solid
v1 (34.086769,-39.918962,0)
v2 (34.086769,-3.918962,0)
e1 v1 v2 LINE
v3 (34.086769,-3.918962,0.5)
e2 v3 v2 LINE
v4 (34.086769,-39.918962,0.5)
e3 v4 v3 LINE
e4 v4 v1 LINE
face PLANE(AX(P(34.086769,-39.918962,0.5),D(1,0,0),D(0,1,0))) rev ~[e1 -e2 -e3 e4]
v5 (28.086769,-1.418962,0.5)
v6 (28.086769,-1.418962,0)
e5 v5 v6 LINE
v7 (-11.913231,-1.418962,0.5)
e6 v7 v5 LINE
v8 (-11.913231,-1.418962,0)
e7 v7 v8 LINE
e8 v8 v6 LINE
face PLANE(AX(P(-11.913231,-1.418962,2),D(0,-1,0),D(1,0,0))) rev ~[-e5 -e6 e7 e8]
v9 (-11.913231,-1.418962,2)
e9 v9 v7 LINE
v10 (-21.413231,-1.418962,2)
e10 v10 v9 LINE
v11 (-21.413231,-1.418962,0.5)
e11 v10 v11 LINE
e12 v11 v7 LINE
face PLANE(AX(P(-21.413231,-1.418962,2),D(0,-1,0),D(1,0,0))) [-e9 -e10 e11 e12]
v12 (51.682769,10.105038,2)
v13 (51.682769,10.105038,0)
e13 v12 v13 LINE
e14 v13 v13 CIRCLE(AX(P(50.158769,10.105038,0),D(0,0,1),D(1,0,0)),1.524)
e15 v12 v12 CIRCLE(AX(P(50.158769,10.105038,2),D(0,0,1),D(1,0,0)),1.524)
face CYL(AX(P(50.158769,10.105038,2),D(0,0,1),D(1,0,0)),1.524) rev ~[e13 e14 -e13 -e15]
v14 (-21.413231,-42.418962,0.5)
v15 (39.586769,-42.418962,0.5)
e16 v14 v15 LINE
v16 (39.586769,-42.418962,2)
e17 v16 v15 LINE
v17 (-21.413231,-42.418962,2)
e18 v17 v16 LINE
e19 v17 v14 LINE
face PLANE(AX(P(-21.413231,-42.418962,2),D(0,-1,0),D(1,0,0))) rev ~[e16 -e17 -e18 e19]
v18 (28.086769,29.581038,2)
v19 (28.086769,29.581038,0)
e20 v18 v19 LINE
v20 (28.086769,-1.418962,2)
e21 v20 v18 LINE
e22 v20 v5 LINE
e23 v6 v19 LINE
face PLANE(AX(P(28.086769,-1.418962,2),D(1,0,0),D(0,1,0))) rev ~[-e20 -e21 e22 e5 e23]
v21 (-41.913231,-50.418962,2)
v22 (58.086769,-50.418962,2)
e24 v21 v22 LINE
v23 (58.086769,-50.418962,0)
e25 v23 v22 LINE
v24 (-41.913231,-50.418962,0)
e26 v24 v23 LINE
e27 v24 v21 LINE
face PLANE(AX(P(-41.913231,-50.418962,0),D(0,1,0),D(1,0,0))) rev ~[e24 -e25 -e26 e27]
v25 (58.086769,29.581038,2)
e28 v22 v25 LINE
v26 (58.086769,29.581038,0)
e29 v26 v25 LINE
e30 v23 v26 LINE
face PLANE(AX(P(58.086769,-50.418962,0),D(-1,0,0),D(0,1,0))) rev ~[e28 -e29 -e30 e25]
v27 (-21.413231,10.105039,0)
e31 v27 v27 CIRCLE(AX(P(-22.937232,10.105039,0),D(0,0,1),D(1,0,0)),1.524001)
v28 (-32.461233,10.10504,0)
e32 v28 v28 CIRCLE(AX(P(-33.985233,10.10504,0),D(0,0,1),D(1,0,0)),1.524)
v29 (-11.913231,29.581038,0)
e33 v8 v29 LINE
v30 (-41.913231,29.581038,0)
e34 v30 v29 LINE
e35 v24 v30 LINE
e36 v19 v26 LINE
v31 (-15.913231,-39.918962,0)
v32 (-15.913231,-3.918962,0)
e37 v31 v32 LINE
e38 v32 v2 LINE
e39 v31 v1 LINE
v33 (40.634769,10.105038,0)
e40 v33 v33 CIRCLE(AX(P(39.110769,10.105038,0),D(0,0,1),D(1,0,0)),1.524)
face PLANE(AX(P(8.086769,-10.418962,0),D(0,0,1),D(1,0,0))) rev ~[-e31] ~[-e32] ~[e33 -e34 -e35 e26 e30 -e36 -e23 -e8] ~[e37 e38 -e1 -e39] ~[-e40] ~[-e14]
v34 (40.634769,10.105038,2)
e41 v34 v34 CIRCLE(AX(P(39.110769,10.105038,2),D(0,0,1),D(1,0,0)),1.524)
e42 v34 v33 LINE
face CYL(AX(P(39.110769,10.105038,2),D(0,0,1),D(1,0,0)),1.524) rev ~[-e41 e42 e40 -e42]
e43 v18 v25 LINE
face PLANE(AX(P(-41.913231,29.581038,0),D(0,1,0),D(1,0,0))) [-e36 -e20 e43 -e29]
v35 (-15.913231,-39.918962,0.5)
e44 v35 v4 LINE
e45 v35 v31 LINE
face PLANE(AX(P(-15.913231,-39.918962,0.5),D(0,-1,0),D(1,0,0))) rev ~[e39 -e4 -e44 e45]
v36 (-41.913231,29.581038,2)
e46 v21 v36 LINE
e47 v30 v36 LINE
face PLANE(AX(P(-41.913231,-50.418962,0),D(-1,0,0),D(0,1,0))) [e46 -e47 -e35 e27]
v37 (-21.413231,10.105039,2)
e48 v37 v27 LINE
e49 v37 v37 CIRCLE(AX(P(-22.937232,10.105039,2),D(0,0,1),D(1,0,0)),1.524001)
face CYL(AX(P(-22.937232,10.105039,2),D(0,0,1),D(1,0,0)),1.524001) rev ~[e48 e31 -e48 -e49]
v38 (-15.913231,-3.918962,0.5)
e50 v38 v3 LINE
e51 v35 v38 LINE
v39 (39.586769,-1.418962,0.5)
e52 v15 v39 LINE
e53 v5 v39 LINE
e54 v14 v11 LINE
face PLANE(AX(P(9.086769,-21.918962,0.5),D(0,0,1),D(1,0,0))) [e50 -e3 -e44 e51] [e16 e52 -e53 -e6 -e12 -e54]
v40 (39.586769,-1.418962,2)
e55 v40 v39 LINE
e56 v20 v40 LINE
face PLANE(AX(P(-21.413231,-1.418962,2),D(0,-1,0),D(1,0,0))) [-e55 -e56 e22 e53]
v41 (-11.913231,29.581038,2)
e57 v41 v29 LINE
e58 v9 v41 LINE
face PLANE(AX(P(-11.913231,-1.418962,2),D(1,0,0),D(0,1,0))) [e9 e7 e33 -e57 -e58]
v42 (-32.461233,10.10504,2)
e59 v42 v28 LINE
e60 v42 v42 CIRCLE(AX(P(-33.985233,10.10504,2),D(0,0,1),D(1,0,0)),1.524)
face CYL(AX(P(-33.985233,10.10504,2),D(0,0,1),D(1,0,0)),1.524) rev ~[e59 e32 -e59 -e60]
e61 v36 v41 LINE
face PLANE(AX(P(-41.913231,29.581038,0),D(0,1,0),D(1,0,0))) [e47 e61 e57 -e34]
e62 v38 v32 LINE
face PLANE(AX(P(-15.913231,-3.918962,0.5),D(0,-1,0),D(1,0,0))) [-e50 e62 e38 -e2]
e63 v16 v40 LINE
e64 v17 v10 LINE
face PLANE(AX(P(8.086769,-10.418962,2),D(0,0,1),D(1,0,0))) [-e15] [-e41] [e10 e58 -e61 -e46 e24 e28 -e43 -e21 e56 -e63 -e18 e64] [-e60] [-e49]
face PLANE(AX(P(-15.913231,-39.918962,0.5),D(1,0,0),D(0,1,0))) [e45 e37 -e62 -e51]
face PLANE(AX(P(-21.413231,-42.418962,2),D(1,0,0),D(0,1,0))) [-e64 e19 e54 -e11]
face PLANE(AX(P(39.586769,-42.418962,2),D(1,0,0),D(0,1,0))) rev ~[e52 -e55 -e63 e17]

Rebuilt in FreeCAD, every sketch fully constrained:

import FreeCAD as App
import Part
import Sketcher

V = App.Vector

doc = App.newDocument("Part")
body = doc.addObject("PartDesign::Body", "Body")

sketch1 = body.newObject("Sketcher::SketchObject", "Sketch")
sketch1.AttachmentSupport = (doc.getObject("XY_Plane"), [""])
sketch1.MapMode = "FlatFace"
sketch1.addGeometry([
    Part.LineSegment(V(-42, 30, 0), V(-42, -50, 0)),
    Part.LineSegment(V(-42, -50, 0), V(58, -50, 0)),
    Part.LineSegment(V(58, -50, 0), V(58, 30, 0)),
    Part.LineSegment(V(58, 30, 0), V(-42, 30, 0)),
], False)
sketch1.addConstraint([
    Sketcher.Constraint("Coincident", 0, 2, 1, 1),
    Sketcher.Constraint("Coincident", 1, 2, 2, 1),
    Sketcher.Constraint("Coincident", 2, 2, 3, 1),
    Sketcher.Constraint("Coincident", 3, 2, 0, 1),
    Sketcher.Constraint("Vertical", 0),
    Sketcher.Constraint("Horizontal", 1),
    Sketcher.Constraint("Vertical", 2),
    Sketcher.Constraint("Horizontal", 3),
    Sketcher.Constraint("DistanceX", 1, 1, 1, 2, 100.0),
    Sketcher.Constraint("DistanceY", 0, 2, 0, 1, 80.0),
    Sketcher.Constraint("DistanceX", 0, 2, -1, 1, 41.913231),
    Sketcher.Constraint("DistanceY", 0, 2, -1, 1, 50.418962),
])
pad1 = body.newObject("PartDesign::Pad", "Pad")
pad1.Profile = sketch1
pad1.Length = 2

sketch2 = body.newObject("Sketcher::SketchObject", "Sketch001")
sketch2.AttachmentSupport = (doc.getObject("XY_Plane"), [""])
sketch2.MapMode = "FlatFace"
sketch2.AttachmentOffset = App.Placement(V(0, 0, 2), App.Rotation())
sketch2.addGeometry([
    Part.LineSegment(V(-12, 30, 0), V(-12, -1, 0)),
    Part.LineSegment(V(-12, -1, 0), V(28, -1, 0)),
    Part.LineSegment(V(28, -1, 0), V(28, 30, 0)),
    Part.LineSegment(V(28, 30, 0), V(-12, 30, 0)),
], False)
sketch2.addConstraint([
    Sketcher.Constraint("Coincident", 0, 2, 1, 1),
    Sketcher.Constraint("Coincident", 1, 2, 2, 1),
    Sketcher.Constraint("Coincident", 2, 2, 3, 1),
    Sketcher.Constraint("Coincident", 3, 2, 0, 1),
    Sketcher.Constraint("Vertical", 0),
    Sketcher.Constraint("Horizontal", 1),
    Sketcher.Constraint("Vertical", 2),
    Sketcher.Constraint("Horizontal", 3),
    Sketcher.Constraint("DistanceX", 1, 1, 1, 2, 40.0),
    Sketcher.Constraint("DistanceY", 0, 2, 0, 1, 31.0),
    Sketcher.Constraint("DistanceX", 0, 2, -1, 1, 11.913231),
    Sketcher.Constraint("DistanceY", 0, 2, -1, 1, 1.418962),
])
pocket1 = body.newObject("PartDesign::Pocket", "Pocket")
pocket1.Profile = sketch2
pocket1.Type = "ThroughAll"

sketch3 = body.newObject("Sketcher::SketchObject", "Sketch002")
sketch3.AttachmentSupport = (doc.getObject("XY_Plane"), [""])
sketch3.MapMode = "FlatFace"
sketch3.AttachmentOffset = App.Placement(V(0, 0, 2), App.Rotation())
sketch3.addGeometry([
    Part.LineSegment(V(-21, -1, 0), V(-21, -42, 0)),
    Part.LineSegment(V(-21, -42, 0), V(40, -42, 0)),
    Part.LineSegment(V(40, -42, 0), V(40, -1, 0)),
    Part.LineSegment(V(40, -1, 0), V(-21, -1, 0)),
], False)
sketch3.addConstraint([
    Sketcher.Constraint("Coincident", 0, 2, 1, 1),
    Sketcher.Constraint("Coincident", 1, 2, 2, 1),
    Sketcher.Constraint("Coincident", 2, 2, 3, 1),
    Sketcher.Constraint("Coincident", 3, 2, 0, 1),
    Sketcher.Constraint("Vertical", 0),
    Sketcher.Constraint("Horizontal", 1),
    Sketcher.Constraint("Vertical", 2),
    Sketcher.Constraint("Horizontal", 3),
    Sketcher.Constraint("DistanceX", 1, 1, 1, 2, 61.0),
    Sketcher.Constraint("DistanceY", 0, 2, 0, 1, 41.0),
    Sketcher.Constraint("DistanceX", 0, 2, -1, 1, 21.413231),
    Sketcher.Constraint("DistanceY", 0, 2, -1, 1, 42.418962),
])
pocket2 = body.newObject("PartDesign::Pocket", "Pocket001")
pocket2.Profile = sketch3
pocket2.Length = 1.5

sketch4 = body.newObject("Sketcher::SketchObject", "Sketch003")
sketch4.AttachmentSupport = (doc.getObject("XY_Plane"), [""])
sketch4.MapMode = "FlatFace"
sketch4.AttachmentOffset = App.Placement(V(0, 0, 2), App.Rotation())
sketch4.addGeometry([
    Part.Circle(V(-34, 10.1, 0), V(0, 0, 1), 1.5),
    Part.Circle(V(-22.9, 10.1, 0), V(0, 0, 1), 1.5),
    Part.Circle(V(50.2, 10.1, 0), V(0, 0, 1), 1.5),
    Part.Circle(V(39.1, 10.1, 0), V(0, 0, 1), 1.5),
], False)
sketch4.addConstraint([
    Sketcher.Constraint("Equal", 0, 1),
    Sketcher.Constraint("Equal", 1, 2),
    Sketcher.Constraint("Equal", 2, 3),
    Sketcher.Constraint("Horizontal", 0, 3, 1, 3),
    Sketcher.Constraint("Horizontal", 1, 3, 2, 3),
    Sketcher.Constraint("Horizontal", 2, 3, 3, 3),
    Sketcher.Constraint("Diameter", 0, 3.048),
    Sketcher.Constraint("DistanceX", 0, 3, 1, 3, 11.048001),
    Sketcher.Constraint("DistanceX", 1, 3, 2, 3, 73.096001),
    Sketcher.Constraint("DistanceX", 3, 3, 2, 3, 11.048),
    Sketcher.Constraint("DistanceY", -1, 1, 0, 3, 10.10504),
    Sketcher.Constraint("DistanceX", -1, 1, 2, 3, 50.158769),
])
pocket3 = body.newObject("PartDesign::Pocket", "Pocket002")
pocket3.Profile = sketch4
pocket3.Type = "ThroughAll"

sketch5 = body.newObject("Sketcher::SketchObject", "Sketch004")
sketch5.AttachmentSupport = (doc.getObject("XY_Plane"), [""])
sketch5.MapMode = "FlatFace"
sketch5.AttachmentOffset = App.Placement(V(0, 0, 0.5), App.Rotation())
sketch5.addGeometry([
    Part.LineSegment(V(-16, -4, 0), V(-16, -40, 0)),
    Part.LineSegment(V(-16, -40, 0), V(34, -40, 0)),
    Part.LineSegment(V(34, -40, 0), V(34, -4, 0)),
    Part.LineSegment(V(34, -4, 0), V(-16, -4, 0)),
], False)
sketch5.addConstraint([
    Sketcher.Constraint("Coincident", 0, 2, 1, 1),
    Sketcher.Constraint("Coincident", 1, 2, 2, 1),
    Sketcher.Constraint("Coincident", 2, 2, 3, 1),
    Sketcher.Constraint("Coincident", 3, 2, 0, 1),
    Sketcher.Constraint("Vertical", 0),
    Sketcher.Constraint("Horizontal", 1),
    Sketcher.Constraint("Vertical", 2),
    Sketcher.Constraint("Horizontal", 3),
    Sketcher.Constraint("DistanceX", 1, 1, 1, 2, 50.0),
    Sketcher.Constraint("DistanceY", 0, 2, 0, 1, 36.0),
    Sketcher.Constraint("DistanceX", 0, 2, -1, 1, 15.913231),
    Sketcher.Constraint("DistanceY", 2, 2, -1, 1, 3.918962),
])
pocket4 = body.newObject("PartDesign::Pocket", "Pocket003")
pocket4.Profile = sketch5
pocket4.Type = "ThroughAll"

doc.recompute()
